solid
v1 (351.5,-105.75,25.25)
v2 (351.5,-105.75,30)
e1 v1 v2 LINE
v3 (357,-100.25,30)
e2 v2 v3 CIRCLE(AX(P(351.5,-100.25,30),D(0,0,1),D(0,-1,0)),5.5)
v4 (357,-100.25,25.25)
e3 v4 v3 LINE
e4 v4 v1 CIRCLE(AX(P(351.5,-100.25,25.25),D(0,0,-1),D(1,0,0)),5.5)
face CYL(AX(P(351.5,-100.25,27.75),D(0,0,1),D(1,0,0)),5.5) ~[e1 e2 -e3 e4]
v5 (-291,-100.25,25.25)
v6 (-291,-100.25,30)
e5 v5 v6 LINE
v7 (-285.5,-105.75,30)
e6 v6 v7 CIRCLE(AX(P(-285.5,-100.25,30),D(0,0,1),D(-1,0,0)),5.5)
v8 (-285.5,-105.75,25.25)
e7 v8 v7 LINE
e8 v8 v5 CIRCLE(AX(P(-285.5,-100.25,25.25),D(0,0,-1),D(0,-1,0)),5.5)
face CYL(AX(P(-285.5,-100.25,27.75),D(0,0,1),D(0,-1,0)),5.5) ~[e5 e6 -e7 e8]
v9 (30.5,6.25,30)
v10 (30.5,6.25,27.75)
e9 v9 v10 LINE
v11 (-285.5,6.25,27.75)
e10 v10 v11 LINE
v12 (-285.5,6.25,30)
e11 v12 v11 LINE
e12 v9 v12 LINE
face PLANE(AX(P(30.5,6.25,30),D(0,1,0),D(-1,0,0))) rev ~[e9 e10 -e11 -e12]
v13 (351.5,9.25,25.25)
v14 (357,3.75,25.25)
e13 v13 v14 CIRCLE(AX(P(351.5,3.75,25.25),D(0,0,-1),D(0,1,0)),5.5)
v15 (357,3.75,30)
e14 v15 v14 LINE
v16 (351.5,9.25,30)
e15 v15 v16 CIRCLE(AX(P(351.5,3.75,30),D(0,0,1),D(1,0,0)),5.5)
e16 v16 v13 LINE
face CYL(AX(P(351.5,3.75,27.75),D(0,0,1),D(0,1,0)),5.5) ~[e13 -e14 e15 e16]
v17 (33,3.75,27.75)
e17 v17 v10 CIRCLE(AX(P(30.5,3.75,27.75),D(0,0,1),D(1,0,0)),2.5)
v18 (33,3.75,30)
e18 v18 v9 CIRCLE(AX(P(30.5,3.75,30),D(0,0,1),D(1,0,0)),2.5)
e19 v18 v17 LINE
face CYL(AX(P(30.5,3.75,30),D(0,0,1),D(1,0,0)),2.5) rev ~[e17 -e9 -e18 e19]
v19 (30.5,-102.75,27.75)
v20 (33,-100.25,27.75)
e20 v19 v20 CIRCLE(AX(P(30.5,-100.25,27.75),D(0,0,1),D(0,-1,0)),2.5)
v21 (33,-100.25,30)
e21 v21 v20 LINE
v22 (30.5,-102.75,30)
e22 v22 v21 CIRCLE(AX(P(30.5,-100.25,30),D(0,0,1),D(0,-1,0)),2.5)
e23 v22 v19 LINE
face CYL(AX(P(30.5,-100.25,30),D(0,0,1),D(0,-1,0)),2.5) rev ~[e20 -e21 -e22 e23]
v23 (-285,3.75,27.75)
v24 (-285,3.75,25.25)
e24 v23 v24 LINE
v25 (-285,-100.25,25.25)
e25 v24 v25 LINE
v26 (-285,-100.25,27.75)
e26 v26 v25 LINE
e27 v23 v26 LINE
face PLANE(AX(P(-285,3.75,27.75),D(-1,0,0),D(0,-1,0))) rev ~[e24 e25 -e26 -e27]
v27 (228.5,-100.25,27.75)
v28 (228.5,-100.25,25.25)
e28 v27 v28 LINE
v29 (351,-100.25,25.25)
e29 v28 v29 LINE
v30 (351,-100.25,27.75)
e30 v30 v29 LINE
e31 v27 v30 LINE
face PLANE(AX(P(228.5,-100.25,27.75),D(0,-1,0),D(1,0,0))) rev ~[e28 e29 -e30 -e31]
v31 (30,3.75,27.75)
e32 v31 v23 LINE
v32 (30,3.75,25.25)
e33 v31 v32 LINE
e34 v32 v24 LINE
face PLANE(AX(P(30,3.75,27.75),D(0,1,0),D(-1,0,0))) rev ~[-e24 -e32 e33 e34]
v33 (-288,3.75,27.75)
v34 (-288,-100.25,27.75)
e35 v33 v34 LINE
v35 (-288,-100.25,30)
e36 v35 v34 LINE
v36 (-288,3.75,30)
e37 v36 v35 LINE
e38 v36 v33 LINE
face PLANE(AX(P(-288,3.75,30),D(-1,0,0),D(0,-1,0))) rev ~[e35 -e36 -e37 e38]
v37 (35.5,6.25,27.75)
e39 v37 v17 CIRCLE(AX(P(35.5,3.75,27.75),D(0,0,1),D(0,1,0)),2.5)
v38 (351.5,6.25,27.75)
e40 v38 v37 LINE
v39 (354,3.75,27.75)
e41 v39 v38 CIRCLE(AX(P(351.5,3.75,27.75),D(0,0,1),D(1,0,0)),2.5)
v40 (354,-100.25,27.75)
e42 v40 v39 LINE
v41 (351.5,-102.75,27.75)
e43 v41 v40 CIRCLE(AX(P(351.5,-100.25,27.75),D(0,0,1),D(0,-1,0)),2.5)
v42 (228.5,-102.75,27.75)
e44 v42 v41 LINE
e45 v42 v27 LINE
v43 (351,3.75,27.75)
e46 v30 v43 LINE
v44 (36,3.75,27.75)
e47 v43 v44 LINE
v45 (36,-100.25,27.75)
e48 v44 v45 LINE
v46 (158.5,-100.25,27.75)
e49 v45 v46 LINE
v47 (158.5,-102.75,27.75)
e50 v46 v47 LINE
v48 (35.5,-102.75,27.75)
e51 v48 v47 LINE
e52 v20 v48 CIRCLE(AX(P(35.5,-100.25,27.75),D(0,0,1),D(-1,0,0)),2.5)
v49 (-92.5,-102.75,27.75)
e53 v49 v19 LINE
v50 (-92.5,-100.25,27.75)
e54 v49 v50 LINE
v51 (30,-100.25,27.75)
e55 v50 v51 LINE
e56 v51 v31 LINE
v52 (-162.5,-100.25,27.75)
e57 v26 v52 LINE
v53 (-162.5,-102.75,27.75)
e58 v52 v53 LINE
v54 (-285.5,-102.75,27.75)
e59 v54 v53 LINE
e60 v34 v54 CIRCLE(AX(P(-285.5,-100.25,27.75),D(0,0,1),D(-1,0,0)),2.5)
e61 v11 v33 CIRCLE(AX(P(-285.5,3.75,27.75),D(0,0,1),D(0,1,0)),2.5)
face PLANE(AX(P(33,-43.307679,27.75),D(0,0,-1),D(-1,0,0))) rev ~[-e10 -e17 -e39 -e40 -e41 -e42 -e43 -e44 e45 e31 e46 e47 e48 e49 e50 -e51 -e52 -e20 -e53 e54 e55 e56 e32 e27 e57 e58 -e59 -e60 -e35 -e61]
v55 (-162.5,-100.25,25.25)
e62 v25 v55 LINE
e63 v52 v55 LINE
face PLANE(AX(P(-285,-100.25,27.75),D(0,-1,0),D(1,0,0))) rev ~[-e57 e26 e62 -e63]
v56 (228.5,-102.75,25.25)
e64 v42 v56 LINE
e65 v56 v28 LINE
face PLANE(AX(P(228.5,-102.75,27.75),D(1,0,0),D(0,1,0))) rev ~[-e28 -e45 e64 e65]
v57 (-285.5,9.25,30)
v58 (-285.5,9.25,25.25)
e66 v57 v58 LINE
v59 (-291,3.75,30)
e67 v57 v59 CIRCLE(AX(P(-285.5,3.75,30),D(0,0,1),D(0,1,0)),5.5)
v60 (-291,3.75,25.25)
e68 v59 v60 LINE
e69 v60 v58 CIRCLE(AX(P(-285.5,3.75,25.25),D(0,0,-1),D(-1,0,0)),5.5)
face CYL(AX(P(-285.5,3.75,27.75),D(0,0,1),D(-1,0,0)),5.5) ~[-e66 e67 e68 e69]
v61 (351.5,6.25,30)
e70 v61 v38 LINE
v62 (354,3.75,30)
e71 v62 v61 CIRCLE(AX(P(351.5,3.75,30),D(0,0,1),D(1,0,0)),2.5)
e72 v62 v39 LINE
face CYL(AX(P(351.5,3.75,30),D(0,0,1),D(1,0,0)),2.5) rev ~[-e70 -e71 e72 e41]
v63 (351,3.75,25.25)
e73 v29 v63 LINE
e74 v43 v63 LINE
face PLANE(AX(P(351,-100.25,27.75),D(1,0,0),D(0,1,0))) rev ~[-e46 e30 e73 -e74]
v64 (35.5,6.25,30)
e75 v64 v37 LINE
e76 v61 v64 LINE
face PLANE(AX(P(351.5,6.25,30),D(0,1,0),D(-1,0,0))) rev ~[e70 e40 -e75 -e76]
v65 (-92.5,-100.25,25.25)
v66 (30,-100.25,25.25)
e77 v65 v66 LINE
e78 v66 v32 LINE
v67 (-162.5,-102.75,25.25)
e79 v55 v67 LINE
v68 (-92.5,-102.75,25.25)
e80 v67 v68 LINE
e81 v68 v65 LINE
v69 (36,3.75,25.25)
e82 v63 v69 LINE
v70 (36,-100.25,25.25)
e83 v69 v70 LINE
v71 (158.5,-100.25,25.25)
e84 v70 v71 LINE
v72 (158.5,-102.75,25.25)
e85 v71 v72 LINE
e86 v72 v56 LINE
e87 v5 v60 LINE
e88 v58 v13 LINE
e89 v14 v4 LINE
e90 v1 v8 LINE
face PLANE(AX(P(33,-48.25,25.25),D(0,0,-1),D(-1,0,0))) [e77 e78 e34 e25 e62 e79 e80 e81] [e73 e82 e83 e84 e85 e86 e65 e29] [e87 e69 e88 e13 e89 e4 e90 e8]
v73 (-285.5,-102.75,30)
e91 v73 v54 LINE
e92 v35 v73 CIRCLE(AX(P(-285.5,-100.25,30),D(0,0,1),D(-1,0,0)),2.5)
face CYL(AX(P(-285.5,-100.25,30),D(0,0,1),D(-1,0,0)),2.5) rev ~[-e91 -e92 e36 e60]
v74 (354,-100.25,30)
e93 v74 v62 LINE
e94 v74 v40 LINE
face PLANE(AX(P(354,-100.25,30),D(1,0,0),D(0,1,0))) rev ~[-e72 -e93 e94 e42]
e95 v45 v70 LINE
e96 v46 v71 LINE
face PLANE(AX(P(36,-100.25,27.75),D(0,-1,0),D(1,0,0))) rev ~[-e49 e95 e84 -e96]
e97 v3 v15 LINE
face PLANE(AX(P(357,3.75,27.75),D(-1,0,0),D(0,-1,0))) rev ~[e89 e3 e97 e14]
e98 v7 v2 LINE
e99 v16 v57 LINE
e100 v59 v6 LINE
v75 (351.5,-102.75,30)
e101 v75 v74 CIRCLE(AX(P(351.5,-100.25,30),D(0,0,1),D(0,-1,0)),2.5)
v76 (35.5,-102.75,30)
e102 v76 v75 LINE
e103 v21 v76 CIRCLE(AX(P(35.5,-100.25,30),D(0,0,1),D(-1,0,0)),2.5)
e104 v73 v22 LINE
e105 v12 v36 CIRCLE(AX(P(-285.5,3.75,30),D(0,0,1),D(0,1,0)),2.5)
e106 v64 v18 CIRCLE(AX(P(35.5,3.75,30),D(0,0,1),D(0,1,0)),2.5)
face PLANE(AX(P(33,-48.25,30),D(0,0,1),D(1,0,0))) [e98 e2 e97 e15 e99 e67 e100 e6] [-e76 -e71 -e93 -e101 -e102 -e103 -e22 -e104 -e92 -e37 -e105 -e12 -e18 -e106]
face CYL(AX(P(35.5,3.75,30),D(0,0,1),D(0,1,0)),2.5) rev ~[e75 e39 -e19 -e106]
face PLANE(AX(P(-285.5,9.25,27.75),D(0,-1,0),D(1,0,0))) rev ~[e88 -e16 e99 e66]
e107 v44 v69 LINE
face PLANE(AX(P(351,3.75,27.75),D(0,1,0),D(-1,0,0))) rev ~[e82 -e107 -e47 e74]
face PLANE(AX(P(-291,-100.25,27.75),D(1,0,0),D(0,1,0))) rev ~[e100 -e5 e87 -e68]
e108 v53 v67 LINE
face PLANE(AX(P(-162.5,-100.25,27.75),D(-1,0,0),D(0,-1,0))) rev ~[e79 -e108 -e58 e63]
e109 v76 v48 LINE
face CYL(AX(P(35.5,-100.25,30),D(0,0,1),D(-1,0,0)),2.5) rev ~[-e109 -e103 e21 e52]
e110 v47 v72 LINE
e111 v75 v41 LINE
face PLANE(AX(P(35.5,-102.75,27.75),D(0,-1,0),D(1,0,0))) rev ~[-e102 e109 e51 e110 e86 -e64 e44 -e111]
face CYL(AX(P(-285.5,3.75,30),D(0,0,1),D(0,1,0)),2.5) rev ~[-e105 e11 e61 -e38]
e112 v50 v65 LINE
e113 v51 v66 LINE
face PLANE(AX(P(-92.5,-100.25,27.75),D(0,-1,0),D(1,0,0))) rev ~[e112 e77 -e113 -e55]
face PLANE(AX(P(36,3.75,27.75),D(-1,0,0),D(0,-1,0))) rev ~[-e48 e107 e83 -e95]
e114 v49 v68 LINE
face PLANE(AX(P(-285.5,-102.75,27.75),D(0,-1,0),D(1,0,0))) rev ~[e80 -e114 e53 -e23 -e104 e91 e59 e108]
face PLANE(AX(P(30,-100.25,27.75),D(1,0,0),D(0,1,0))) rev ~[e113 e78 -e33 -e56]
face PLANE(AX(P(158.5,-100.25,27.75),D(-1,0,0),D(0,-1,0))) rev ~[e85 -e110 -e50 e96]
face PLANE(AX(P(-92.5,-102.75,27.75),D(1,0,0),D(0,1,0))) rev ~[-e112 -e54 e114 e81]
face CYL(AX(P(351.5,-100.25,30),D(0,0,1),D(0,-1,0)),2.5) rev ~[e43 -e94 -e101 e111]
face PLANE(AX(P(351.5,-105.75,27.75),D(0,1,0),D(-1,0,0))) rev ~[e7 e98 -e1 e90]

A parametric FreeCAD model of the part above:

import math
import FreeCAD as App
import Part
import Sketcher

V = App.Vector

doc = App.newDocument("Part")
params = doc.addObject("Spreadsheet::Sheet", "Params")
for row, (alias, value) in enumerate([
    ("sketch1_radius", "5.5 mm"),
    ("sketch1_radius2", "2.5 mm"),
    ("sketch1_width", "637 mm"),
    ("sketch1_height", "104 mm"),
    ("pad1_length", "2.25 mm"),
    ("sketch2_radius", "5.5 mm"),
    ("sketch2_width", "637 mm"),
    ("sketch2_width2", "70 mm"),
    ("sketch2_width3", "315 mm"),
    ("sketch2_height", "104 mm"),
    ("pad2_length", "2.5 mm"),
], start=1):
    params.set(f"A{row}", alias)
    params.set(f"B{row}", "=" + value)
    params.setAlias(f"B{row}", alias)

body = doc.addObject("PartDesign::Body", "Body")

# Sketch on XY plane
sketch1 = body.newObject("Sketcher::SketchObject", "Sketch")
sketch1.AttachmentSupport = (doc.getObject("XY_Plane"), [""])
sketch1.MapMode = "FlatFace"
sketch1.AttachmentOffset = App.Placement(V(0, 0, 30), App.Rotation())
sketch1.addGeometry([
    Part.LineSegment(V(-291, 3.8, 0), V(-291, -100.2, 0)),  # 0
    Part.ArcOfCircle(Part.Circle(V(-285.5, -100.3, 0), V(0, 0, 1), 5.5), math.radians(180), math.radians(270)),  # 1
    Part.LineSegment(V(-285.5, -105.8, 0), V(351.5, -105.8, 0)),  # 2
    Part.ArcOfCircle(Part.Circle(V(351.5, -100.3, 0), V(0, 0, 1), 5.5), math.radians(-90), math.radians(0)),  # 3
    Part.LineSegment(V(357, -100.2, 0), V(357, 3.8, 0)),  # 4
    Part.ArcOfCircle(Part.Circle(V(351.5, 3.8, 0), V(0, 0, 1), 5.5), math.radians(0), math.radians(90)),  # 5
    Part.LineSegment(V(351.5, 9.2, 0), V(-285.5, 9.2, 0)),  # 6
    Part.ArcOfCircle(Part.Circle(V(-285.5, 3.8, 0), V(0, 0, 1), 5.5), math.radians(90), math.radians(180)),  # 7
    Part.LineSegment(V(-285.5, 6.2, 0), V(30.5, 6.2, 0)),  # 8
    Part.ArcOfCircle(Part.Circle(V(30.5, 3.8, 0), V(0, 0, 1), 2.5), math.radians(0), math.radians(90)),  # 9
    Part.ArcOfCircle(Part.Circle(V(35.5, 3.8, 0), V(0, 0, 1), 2.5), math.radians(90), math.radians(180)),  # 10
    Part.LineSegment(V(35.5, 6.2, 0), V(351.5, 6.2, 0)),  # 11
    Part.ArcOfCircle(Part.Circle(V(351.5, 3.8, 0), V(0, 0, 1), 2.5), math.radians(0), math.radians(90)),  # 12
    Part.LineSegment(V(354, 3.8, 0), V(354, -100.2, 0)),  # 13
    Part.ArcOfCircle(Part.Circle(V(351.5, -100.2, 0), V(0, 0, 1), 2.5), math.radians(-90), math.radians(0)),  # 14
    Part.LineSegment(V(351.5, -102.8, 0), V(35.5, -102.8, 0)),  # 15
    Part.ArcOfCircle(Part.Circle(V(35.5, -100.2, 0), V(0, 0, 1), 2.5), math.radians(180), math.radians(270)),  # 16
    Part.ArcOfCircle(Part.Circle(V(30.5, -100.2, 0), V(0, 0, 1), 2.5), math.radians(-90), math.radians(0)),  # 17
    Part.LineSegment(V(30.5, -102.8, 0), V(-285.5, -102.8, 0)),  # 18
    Part.ArcOfCircle(Part.Circle(V(-285.5, -100.2, 0), V(0, 0, 1), 2.5), math.radians(180), math.radians(270)),  # 19
    Part.LineSegment(V(-288, -100.2, 0), V(-288, 3.8, 0)),  # 20
    Part.ArcOfCircle(Part.Circle(V(-285.5, 3.8, 0), V(0, 0, 1), 2.5), math.radians(90), math.radians(180)),  # 21
], False)
sketch1.addConstraint([
    Sketcher.Constraint("Tangent", 0, 2, 1, 1),
    Sketcher.Constraint("Tangent", 1, 2, 2, 1),
    Sketcher.Constraint("Tangent", 2, 2, 3, 1),
    Sketcher.Constraint("Tangent", 3, 2, 4, 1),
    Sketcher.Constraint("Tangent", 4, 2, 5, 1),
    Sketcher.Constraint("Tangent", 5, 2, 6, 1),
    Sketcher.Constraint("Tangent", 6, 2, 7, 1),
    Sketcher.Constraint("Tangent", 7, 2, 0, 1),
    Sketcher.Constraint("Tangent", 8, 2, 9, 2),
    Sketcher.Constraint("Tangent", 9, 1, 10, 2),
    Sketcher.Constraint("Tangent", 10, 1, 11, 1),
    Sketcher.Constraint("Tangent", 11, 2, 12, 2),
    Sketcher.Constraint("Tangent", 12, 1, 13, 1),
    Sketcher.Constraint("Tangent", 13, 2, 14, 2),
    Sketcher.Constraint("Tangent", 14, 1, 15, 1),
    Sketcher.Constraint("Tangent", 15, 2, 16, 2),
    Sketcher.Constraint("Tangent", 16, 1, 17, 2),
    Sketcher.Constraint("Tangent", 17, 1, 18, 1),
    Sketcher.Constraint("Tangent", 18, 2, 19, 2),
    Sketcher.Constraint("Tangent", 19, 1, 20, 1),
    Sketcher.Constraint("Tangent", 20, 2, 21, 2),
    Sketcher.Constraint("Tangent", 21, 1, 8, 1),
    Sketcher.Constraint("Vertical", 0),
    Sketcher.Constraint("Horizontal", 2),
    Sketcher.Constraint("Vertical", 4),
    Sketcher.Constraint("Horizontal", 6),
    Sketcher.Constraint("Horizontal", 8),
    Sketcher.Constraint("Horizontal", 11),
    Sketcher.Constraint("Vertical", 13),
    Sketcher.Constraint("Horizontal", 15),
    Sketcher.Constraint("Horizontal", 18),
    Sketcher.Constraint("Vertical", 20),
    Sketcher.Constraint("Coincident", 12, 3, 5, 3),
    Sketcher.Constraint("Coincident", 14, 3, 3, 3),
    Sketcher.Constraint("Coincident", 19, 3, 1, 3),
    Sketcher.Constraint("Coincident", 21, 3, 7, 3),
    Sketcher.Constraint("Equal", 1, 3),
    Sketcher.Constraint("Equal", 3, 5),
    Sketcher.Constraint("Equal", 5, 7),
    Sketcher.Constraint("Equal", 9, 10),
    Sketcher.Constraint("Equal", 10, 12),
    Sketcher.Constraint("Equal", 14, 16),
    Sketcher.Constraint("Equal", 16, 17),
    Sketcher.Constraint("Equal", 17, 19),
    Sketcher.Constraint("Vertical", 10, 3, 16, 3),
    Sketcher.Constraint("Equal", 8, 11),
    Sketcher.Constraint("Radius", 1, 5.5),
    Sketcher.Constraint("Radius", 9, 2.5),
    Sketcher.Constraint("DistanceX", 2, 1, 2, 2, 637.0),
    Sketcher.Constraint("DistanceY", 0, 2, 0, 1, 104.0),
    Sketcher.Constraint("DistanceX", 0, 2, -1, 1, 291.0),
    Sketcher.Constraint("DistanceY", 1, 3, -1, 1, 100.25),
])
sketch1.setExpression("Constraints[46]", "Params.sketch1_radius")
sketch1.setExpression("Constraints[47]", "Params.sketch1_radius2")
sketch1.setExpression("Constraints[48]", "Params.sketch1_width")
sketch1.setExpression("Constraints[49]", "Params.sketch1_height")
pad1 = body.newObject("PartDesign::Pad", "Pad")
pad1.Profile = sketch1
pad1.setExpression("Length", "Params.pad1_length")
pad1.Reversed = True

# Sketch on XY plane
sketch2 = body.newObject("Sketcher::SketchObject", "Sketch001")
sketch2.AttachmentSupport = (doc.getObject("XY_Plane"), [""])
sketch2.MapMode = "FlatFace"
sketch2.AttachmentOffset = App.Placement(V(0, 0, 27.75), App.Rotation())
sketch2.addGeometry([
    Part.LineSegment(V(-291, -100.2, 0), V(-291, 3.8, 0)),  # 0
    Part.ArcOfCircle(Part.Circle(V(-285.5, 3.8, 0), V(0, 0, 1), 5.5), math.radians(90), math.radians(180)),  # 1
    Part.LineSegment(V(-285.5, 9.2, 0), V(351.5, 9.2, 0)),  # 2
    Part.ArcOfCircle(Part.Circle(V(351.5, 3.8, 0), V(0, 0, 1), 5.5), math.radians(0), math.radians(90)),  # 3
    Part.LineSegment(V(357, 3.8, 0), V(357, -100.2, 0)),  # 4
    Part.ArcOfCircle(Part.Circle(V(351.5, -100.3, 0), V(0, 0, 1), 5.5), math.radians(-90), math.radians(0)),  # 5
    Part.LineSegment(V(351.5, -105.8, 0), V(-285.5, -105.8, 0)),  # 6
    Part.ArcOfCircle(Part.Circle(V(-285.5, -100.3, 0), V(0, 0, 1), 5.5), math.radians(180), math.radians(270)),  # 7
    Part.LineSegment(V(158.5, -102.8, 0), V(228.5, -102.8, 0)),  # 8
    Part.LineSegment(V(228.5, -102.8, 0), V(228.5, -100.2, 0)),  # 9
    Part.LineSegment(V(228.5, -100.2, 0), V(351, -100.2, 0)),  # 10
    Part.LineSegment(V(351, -100.2, 0), V(351, 3.8, 0)),  # 11
    Part.LineSegment(V(351, 3.8, 0), V(36, 3.8, 0)),  # 12
    Part.LineSegment(V(36, 3.8, 0), V(36, -100.2, 0)),  # 13
    Part.LineSegment(V(36, -100.2, 0), V(158.5, -100.2, 0)),  # 14
    Part.LineSegment(V(158.5, -100.2, 0), V(158.5, -102.8, 0)),  # 15
    Part.LineSegment(V(-162.5, -102.8, 0), V(-92.5, -102.8, 0)),  # 16
    Part.LineSegment(V(-92.5, -102.8, 0), V(-92.5, -100.2, 0)),  # 17
    Part.LineSegment(V(-92.5, -100.2, 0), V(30, -100.2, 0)),  # 18
    Part.LineSegment(V(30, -100.2, 0), V(30, 3.8, 0)),  # 19
    Part.LineSegment(V(30, 3.8, 0), V(-285, 3.8, 0)),  # 20
    Part.LineSegment(V(-285, 3.8, 0), V(-285, -100.2, 0)),  # 21
    Part.LineSegment(V(-285, -100.2, 0), V(-162.5, -100.2, 0)),  # 22
    Part.LineSegment(V(-162.5, -100.2, 0), V(-162.5, -102.8, 0)),  # 23
], False)
sketch2.addConstraint([
    Sketcher.Constraint("Tangent", 0, 2, 1, 2),
    Sketcher.Constraint("Tangent", 1, 1, 2, 1),
    Sketcher.Constraint("Tangent", 2, 2, 3, 2),
    Sketcher.Constraint("Tangent", 3, 1, 4, 1),
    Sketcher.Constraint("Tangent", 4, 2, 5, 2),
    Sketcher.Constraint("Tangent", 5, 1, 6, 1),
    Sketcher.Constraint("Tangent", 6, 2, 7, 2),
    Sketcher.Constraint("Tangent", 7, 1, 0, 1),
    Sketcher.Constraint("Coincident", 8, 2, 9, 1),
    Sketcher.Constraint("Coincident", 9, 2, 10, 1),
    Sketcher.Constraint("Coincident", 10, 2, 11, 1),
    Sketcher.Constraint("Coincident", 11, 2, 12, 1),
    Sketcher.Constraint("Coincident", 12, 2, 13, 1),
    Sketcher.Constraint("Coincident", 13, 2, 14, 1),
    Sketcher.Constraint("Coincident", 14, 2, 15, 1),
    Sketcher.Constraint("Coincident", 15, 2, 8, 1),
    Sketcher.Constraint("Coincident", 16, 2, 17, 1),
    Sketcher.Constraint("Coincident", 17, 2, 18, 1),
    Sketcher.Constraint("Coincident", 18, 2, 19, 1),
    Sketcher.Constraint("Coincident", 19, 2, 20, 1),
    Sketcher.Constraint("Coincident", 20, 2, 21, 1),
    Sketcher.Constraint("Coincident", 21, 2, 22, 1),
    Sketcher.Constraint("Coincident", 22, 2, 23, 1),
    Sketcher.Constraint("Coincident", 23, 2, 16, 1),
    Sketcher.Constraint("Vertical", 0),
    Sketcher.Constraint("Horizontal", 2),
    Sketcher.Constraint("Vertical", 4),
    Sketcher.Constraint("Horizontal", 6),
    Sketcher.Constraint("Horizontal", 8),
    Sketcher.Constraint("Vertical", 9),
    Sketcher.Constraint("Horizontal", 10),
    Sketcher.Constraint("Vertical", 11),
    Sketcher.Constraint("Horizontal", 12),
    Sketcher.Constraint("Vertical", 13),
    Sketcher.Constraint("Horizontal", 14),
    Sketcher.Constraint("Vertical", 15),
    Sketcher.Constraint("Horizontal", 16),
    Sketcher.Constraint("Vertical", 17),
    Sketcher.Constraint("Horizontal", 18),
    Sketcher.Constraint("Vertical", 19),
    Sketcher.Constraint("Horizontal", 20),
    Sketcher.Constraint("Vertical", 21),
    Sketcher.Constraint("Horizontal", 22),
    Sketcher.Constraint("Vertical", 23),
    Sketcher.Constraint("Equal", 1, 3),
    Sketcher.Constraint("Equal", 3, 5),
    Sketcher.Constraint("Equal", 5, 7),
    Sketcher.Constraint("Horizontal", 7, 1, 9, 2),
    Sketcher.Constraint("Horizontal", 3, 1, 11, 2),
    Sketcher.Constraint("Horizontal", 10, 2, 13, 2),
    Sketcher.Constraint("Horizontal", 15, 2, 16, 2),
    Sketcher.Constraint("Horizontal", 14, 2, 17, 2),
    Sketcher.Constraint("Horizontal", 12, 2, 19, 2),
    Sketcher.Constraint("Horizontal", 18, 2, 21, 2),
    Sketcher.Constraint("Equal", 10, 14),
    Sketcher.Constraint("Equal", 8, 16),
    Sketcher.Constraint("Equal", 14, 18),
    Sketcher.Constraint("Equal", 12, 20),
    Sketcher.Constraint("Radius", 1, 5.5),
    Sketcher.Constraint("DistanceX", 2, 1, 2, 2, 637.0),
    Sketcher.Constraint("DistanceX", 8, 1, 8, 2, 70.0),
    Sketcher.Constraint("DistanceX", 12, 2, 12, 1, 315.0),
    Sketcher.Constraint("DistanceY", 0, 1, 0, 2, 104.0),
    Sketcher.Constraint("DistanceY", 9, 1, 9, 2, 2.5),
    Sketcher.Constraint("DistanceX", 0, 2, -1, 1, 291.0),
    Sketcher.Constraint("DistanceX", -1, 1, 10, 2, 351.0),
    Sketcher.Constraint("DistanceX", -1, 1, 18, 2, 30.0),
    Sketcher.Constraint("DistanceY", -1, 1, 1, 3, 3.75),
])
sketch2.setExpression("Constraints[58]", "Params.sketch2_radius")
sketch2.setExpression("Constraints[59]", "Params.sketch2_width")
sketch2.setExpression("Constraints[60]", "Params.sketch2_width2")
sketch2.setExpression("Constraints[61]", "Params.sketch2_width3")
sketch2.setExpression("Constraints[62]", "Params.sketch2_height")
pad2 = body.newObject("PartDesign::Pad", "Pad001")
pad2.Profile = sketch2
pad2.setExpression("Length", "Params.pad2_length")
pad2.Reversed = True

doc.recompute()
